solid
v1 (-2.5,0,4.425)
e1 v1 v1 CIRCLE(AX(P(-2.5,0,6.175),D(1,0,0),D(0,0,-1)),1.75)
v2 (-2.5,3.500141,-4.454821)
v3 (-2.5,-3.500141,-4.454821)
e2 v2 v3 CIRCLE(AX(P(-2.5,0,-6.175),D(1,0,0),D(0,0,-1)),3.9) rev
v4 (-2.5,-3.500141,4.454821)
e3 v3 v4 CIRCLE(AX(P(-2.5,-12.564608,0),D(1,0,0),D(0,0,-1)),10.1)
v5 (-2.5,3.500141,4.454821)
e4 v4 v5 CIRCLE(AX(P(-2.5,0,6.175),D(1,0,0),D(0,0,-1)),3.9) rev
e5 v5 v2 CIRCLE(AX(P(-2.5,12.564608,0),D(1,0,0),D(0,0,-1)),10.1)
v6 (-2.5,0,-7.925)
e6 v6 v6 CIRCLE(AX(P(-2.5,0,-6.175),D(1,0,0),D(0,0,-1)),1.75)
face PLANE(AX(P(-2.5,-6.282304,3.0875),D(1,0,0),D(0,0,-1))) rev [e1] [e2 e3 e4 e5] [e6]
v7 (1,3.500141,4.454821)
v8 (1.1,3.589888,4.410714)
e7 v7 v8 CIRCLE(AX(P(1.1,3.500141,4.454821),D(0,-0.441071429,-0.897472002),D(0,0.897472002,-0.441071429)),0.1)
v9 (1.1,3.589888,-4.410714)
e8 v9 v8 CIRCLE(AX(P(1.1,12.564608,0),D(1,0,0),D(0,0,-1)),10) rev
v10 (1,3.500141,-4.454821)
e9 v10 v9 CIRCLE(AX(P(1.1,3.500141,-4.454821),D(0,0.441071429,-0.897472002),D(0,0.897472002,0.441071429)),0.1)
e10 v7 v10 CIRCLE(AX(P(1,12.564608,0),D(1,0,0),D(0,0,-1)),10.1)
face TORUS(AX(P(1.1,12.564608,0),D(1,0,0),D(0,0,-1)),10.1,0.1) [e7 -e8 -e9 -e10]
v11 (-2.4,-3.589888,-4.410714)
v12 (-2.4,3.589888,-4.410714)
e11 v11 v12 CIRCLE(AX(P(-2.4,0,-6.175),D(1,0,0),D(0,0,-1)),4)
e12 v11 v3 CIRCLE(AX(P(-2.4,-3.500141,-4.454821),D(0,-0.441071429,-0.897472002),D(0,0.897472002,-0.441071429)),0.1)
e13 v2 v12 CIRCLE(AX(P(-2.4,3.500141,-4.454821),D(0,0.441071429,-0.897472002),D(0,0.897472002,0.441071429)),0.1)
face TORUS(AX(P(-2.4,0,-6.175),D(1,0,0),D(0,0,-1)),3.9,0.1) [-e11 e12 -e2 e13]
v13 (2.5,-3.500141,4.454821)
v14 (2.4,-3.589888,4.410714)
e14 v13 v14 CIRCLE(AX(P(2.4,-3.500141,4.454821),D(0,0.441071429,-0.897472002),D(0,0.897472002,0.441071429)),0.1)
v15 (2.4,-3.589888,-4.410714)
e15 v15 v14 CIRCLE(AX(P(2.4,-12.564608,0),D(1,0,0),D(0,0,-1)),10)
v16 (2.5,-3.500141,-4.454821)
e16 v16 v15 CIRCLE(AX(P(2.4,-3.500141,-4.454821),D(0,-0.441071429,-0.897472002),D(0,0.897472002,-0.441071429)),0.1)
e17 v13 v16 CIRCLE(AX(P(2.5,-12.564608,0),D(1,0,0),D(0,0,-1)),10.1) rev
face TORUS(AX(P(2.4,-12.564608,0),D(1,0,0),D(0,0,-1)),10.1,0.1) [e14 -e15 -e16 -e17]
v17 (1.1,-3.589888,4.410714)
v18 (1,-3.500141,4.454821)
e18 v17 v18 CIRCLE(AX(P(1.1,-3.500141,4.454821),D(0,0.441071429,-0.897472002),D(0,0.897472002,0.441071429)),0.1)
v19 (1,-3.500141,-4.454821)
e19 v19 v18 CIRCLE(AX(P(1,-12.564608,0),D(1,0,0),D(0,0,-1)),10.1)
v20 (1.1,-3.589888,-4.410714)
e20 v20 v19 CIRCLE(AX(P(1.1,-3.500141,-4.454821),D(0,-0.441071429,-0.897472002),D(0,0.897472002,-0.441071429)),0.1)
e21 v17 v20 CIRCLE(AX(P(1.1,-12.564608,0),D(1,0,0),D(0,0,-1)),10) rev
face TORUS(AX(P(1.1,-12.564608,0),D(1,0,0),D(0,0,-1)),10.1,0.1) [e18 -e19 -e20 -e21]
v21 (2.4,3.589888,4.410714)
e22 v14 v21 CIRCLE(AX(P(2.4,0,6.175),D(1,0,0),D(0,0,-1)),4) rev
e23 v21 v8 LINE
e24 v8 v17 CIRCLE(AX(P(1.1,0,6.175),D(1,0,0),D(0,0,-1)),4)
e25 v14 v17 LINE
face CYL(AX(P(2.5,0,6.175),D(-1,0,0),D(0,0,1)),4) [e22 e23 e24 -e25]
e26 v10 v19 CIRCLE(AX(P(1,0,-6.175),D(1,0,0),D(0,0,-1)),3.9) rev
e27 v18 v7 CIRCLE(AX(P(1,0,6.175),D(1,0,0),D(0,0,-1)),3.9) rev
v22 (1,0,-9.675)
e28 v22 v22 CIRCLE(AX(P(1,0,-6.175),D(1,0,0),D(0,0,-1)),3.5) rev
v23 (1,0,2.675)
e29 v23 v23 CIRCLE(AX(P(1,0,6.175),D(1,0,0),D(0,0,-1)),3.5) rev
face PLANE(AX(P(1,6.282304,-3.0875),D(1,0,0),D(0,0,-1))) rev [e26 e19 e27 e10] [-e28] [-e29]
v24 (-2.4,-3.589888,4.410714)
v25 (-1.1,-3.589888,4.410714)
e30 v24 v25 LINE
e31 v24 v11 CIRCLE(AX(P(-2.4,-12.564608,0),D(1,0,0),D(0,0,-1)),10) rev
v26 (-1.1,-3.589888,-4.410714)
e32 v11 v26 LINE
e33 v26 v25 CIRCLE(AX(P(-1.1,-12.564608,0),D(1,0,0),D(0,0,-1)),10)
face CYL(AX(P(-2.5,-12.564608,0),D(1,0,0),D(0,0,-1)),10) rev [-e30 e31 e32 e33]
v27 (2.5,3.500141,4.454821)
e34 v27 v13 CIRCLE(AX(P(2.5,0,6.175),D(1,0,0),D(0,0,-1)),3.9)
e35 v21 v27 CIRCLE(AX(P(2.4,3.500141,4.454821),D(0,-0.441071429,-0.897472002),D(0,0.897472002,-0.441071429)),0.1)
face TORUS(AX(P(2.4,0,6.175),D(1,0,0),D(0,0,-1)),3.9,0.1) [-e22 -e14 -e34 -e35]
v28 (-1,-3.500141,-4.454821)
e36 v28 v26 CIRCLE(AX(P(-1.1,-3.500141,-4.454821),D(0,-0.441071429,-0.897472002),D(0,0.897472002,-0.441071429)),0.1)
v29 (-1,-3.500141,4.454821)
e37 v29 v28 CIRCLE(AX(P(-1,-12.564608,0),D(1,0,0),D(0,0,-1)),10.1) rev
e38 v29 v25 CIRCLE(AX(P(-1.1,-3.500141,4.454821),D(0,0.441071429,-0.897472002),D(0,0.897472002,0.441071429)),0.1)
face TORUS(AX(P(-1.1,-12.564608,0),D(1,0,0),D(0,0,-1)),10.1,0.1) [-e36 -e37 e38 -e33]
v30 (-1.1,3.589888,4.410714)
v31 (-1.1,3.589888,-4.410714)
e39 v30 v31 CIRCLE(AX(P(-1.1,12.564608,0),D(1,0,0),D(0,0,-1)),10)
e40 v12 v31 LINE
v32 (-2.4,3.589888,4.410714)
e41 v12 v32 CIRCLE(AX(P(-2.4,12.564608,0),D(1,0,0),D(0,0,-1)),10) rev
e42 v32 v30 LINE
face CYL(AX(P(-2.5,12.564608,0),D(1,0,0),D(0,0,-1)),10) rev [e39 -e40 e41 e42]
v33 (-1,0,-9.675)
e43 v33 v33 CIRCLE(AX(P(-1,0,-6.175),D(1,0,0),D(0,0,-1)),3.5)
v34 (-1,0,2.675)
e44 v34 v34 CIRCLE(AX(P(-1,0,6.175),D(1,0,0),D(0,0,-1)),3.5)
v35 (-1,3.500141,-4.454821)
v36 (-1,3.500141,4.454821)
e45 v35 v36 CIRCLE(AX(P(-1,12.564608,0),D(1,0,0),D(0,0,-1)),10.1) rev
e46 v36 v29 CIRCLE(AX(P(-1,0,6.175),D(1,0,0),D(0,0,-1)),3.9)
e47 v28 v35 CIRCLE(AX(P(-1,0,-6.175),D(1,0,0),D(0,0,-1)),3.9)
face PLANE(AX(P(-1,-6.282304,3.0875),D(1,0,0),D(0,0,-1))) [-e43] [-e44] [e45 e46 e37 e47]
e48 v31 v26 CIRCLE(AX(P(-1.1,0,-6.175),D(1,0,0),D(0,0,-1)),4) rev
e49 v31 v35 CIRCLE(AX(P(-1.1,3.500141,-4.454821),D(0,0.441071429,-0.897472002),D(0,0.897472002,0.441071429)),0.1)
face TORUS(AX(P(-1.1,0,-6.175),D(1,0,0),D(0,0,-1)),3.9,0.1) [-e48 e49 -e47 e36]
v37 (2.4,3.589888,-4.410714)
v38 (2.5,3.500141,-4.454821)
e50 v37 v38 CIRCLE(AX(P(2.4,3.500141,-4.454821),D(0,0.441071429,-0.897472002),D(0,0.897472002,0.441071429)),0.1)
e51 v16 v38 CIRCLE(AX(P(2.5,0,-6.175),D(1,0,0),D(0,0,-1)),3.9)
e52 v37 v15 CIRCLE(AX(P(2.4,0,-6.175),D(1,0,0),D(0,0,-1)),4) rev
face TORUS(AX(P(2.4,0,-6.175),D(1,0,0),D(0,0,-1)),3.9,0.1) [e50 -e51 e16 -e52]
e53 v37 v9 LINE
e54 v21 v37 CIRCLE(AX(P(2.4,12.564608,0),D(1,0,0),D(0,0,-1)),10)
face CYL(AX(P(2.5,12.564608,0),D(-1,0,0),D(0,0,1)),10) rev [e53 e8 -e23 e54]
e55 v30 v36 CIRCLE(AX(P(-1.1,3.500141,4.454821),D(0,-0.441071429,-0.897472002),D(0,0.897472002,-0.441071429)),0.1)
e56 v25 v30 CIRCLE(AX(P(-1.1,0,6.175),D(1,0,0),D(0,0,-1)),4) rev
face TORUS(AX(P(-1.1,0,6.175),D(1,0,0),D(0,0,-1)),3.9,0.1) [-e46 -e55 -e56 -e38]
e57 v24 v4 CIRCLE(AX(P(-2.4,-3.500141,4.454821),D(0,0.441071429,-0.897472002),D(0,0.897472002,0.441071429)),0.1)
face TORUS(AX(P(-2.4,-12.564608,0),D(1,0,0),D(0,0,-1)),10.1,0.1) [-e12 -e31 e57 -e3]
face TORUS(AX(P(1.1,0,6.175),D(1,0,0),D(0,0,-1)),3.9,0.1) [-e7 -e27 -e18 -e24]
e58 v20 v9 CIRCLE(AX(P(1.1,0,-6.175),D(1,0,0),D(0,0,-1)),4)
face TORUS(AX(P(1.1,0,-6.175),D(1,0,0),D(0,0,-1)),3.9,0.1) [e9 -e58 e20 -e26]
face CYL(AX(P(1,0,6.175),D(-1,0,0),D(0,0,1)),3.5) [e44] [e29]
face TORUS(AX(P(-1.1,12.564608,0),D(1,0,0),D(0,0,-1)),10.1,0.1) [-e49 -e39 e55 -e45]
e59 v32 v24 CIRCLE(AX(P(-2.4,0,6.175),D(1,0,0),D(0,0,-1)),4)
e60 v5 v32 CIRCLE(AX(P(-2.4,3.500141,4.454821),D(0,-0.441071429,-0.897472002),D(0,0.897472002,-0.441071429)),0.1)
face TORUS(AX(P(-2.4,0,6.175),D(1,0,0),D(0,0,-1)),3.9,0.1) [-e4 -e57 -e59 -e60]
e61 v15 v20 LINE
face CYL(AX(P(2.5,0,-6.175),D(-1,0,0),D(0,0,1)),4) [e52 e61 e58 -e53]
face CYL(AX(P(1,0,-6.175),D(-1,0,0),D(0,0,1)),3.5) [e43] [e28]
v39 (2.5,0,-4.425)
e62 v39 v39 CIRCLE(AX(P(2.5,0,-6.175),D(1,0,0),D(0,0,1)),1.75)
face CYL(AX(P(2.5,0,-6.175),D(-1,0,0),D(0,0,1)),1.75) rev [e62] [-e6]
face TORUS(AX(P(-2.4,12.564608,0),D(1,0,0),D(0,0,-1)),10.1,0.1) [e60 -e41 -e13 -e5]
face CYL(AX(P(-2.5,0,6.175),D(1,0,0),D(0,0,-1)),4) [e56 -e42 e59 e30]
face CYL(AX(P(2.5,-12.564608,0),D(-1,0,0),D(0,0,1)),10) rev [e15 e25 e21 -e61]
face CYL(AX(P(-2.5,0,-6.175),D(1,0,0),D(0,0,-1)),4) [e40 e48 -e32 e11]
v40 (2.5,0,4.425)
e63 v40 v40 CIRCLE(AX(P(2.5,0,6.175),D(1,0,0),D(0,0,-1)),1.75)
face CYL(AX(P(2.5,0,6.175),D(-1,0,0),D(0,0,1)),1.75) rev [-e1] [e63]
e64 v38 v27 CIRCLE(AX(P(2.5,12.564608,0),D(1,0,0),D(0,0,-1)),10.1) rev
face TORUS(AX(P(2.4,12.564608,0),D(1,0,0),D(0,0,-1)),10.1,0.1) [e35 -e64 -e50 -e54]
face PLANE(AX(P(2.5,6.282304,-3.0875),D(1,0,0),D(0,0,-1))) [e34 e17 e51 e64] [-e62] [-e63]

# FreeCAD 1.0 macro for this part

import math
import FreeCAD as App
import Part
import Sketcher
from FreeCAD import Vector


def edges_at(feature, points):
    """Names of the edges that pass closest to the given points."""
    edges = feature.Shape.Edges
    near = lambda p: min(range(len(edges)), key=lambda i: edges[i].distToShape(Part.Vertex(*p))[0])
    return sorted({f"Edge{near(p) + 1}" for p in points})

doc = App.newDocument("Part")
body = doc.addObject("PartDesign::Body", "Body")

# Sketch on YZ plane
sketch1 = doc.addObject("Sketcher::SketchObject", "Sketch")
body.addObject(sketch1)
sketch1.AttachmentSupport = (doc.YZ_Plane, [""])
sketch1.MapMode = "FlatFace"
sketch1.AttachmentOffset = App.Placement(Vector(0, 0, 1), App.Rotation())
sketch1.addGeometry([
    Part.ArcOfCircle(Part.Circle(Vector(0, 6.2, 0), Vector(0, 0, 1), 4), math.radians(-26), math.radians(206)),  # 0
    Part.ArcOfCircle(Part.Circle(Vector(-12.6, 0, 0), Vector(0, 0, 1), 10), math.radians(-26), math.radians(26)),  # 1
    Part.ArcOfCircle(Part.Circle(Vector(0, -6.2, 0), Vector(0, 0, 1), 4), math.radians(154), math.radians(386)),  # 2
    Part.ArcOfCircle(Part.Circle(Vector(12.6, 0, 0), Vector(0, 0, 1), 10), math.radians(154), math.radians(206)),  # 3
    Part.Circle(Vector(0, 6.2, 0), Vector(0, 0, 1), 1.8),  # 4
    Part.Circle(Vector(0, -6.2, 0), Vector(0, 0, 1), 1.8),  # 5
], False)
sketch1.addConstraint([
    Sketcher.Constraint("Tangent", 0, 2, 1, 2),
    Sketcher.Constraint("Tangent", 1, 1, 2, 1),
    Sketcher.Constraint("Tangent", 2, 2, 3, 2),
    Sketcher.Constraint("Tangent", 3, 1, 0, 1),
    Sketcher.Constraint("Coincident", 4, 3, 0, 3),
    Sketcher.Constraint("Coincident", 5, 3, 2, 3),
    Sketcher.Constraint("Equal", 0, 2),
    Sketcher.Constraint("Equal", 1, 3),
    Sketcher.Constraint("Equal", 4, 5),
    Sketcher.Constraint("Symmetric", 0, 3, 2, 3, -1, 1),
    Sketcher.Constraint("PointOnObject", 0, 3, -2),
    Sketcher.Constraint("Radius", 0, 4.0),
    Sketcher.Constraint("Radius", 1, 10.0),
    Sketcher.Constraint("Diameter", 4, 3.5),
    Sketcher.Constraint("DistanceY", 2, 3, 0, 3, 12.35),
])
pad1 = doc.addObject("PartDesign::Pad", "Pad")
body.addObject(pad1)
pad1.Profile = sketch1
pad1.Length = 1.5
body2 = doc.addObject("PartDesign::Body", "Body001")

# Sketch on YZ plane
sketch2 = doc.addObject("Sketcher::SketchObject", "Sketch001")
body2.addObject(sketch2)
sketch2.AttachmentSupport = (doc.getObject("YZ_Plane001"), [""])
sketch2.MapMode = "FlatFace"
sketch2.AttachmentOffset = App.Placement(Vector(0, 0, -1), App.Rotation())
sketch2.addGeometry([
    Part.ArcOfCircle(Part.Circle(Vector(12.6, 0, 0), Vector(0, 0, 1), 10), math.radians(154), math.radians(206)),  # 0
    Part.ArcOfCircle(Part.Circle(Vector(0, 6.2, 0), Vector(0, 0, 1), 4), math.radians(-26), math.radians(206)),  # 1
    Part.ArcOfCircle(Part.Circle(Vector(-12.6, 0, 0), Vector(0, 0, 1), 10), math.radians(-26), math.radians(26)),  # 2
    Part.ArcOfCircle(Part.Circle(Vector(0, -6.2, 0), Vector(0, 0, 1), 4), math.radians(154), math.radians(386)),  # 3
    Part.Circle(Vector(0, -6.2, 0), Vector(0, 0, 1), 1.8),  # 4
    Part.Circle(Vector(0, 6.2, 0), Vector(0, 0, 1), 1.8),  # 5
], False)
sketch2.addConstraint([
    Sketcher.Constraint("Tangent", 0, 1, 1, 1),
    Sketcher.Constraint("Tangent", 1, 2, 2, 2),
    Sketcher.Constraint("Tangent", 2, 1, 3, 1),
    Sketcher.Constraint("Tangent", 3, 2, 0, 2),
    Sketcher.Constraint("Coincident", 4, 3, 3, 3),
    Sketcher.Constraint("Coincident", 5, 3, 1, 3),
    Sketcher.Constraint("Equal", 0, 2),
    Sketcher.Constraint("Equal", 1, 3),
    Sketcher.Constraint("Equal", 4, 5),
    Sketcher.Constraint("Symmetric", 0, 3, 2, 3, -1, 1),
    Sketcher.Constraint("PointOnObject", 0, 3, -1),
    Sketcher.Constraint("Radius", 0, 10.0),
    Sketcher.Constraint("Radius", 1, 4.0),
    Sketcher.Constraint("Diameter", 4, 3.5),
    Sketcher.Constraint("DistanceY", 3, 3, 1, 3, 12.35),
])
pad2 = doc.addObject("PartDesign::Pad", "Pad001")
body2.addObject(pad2)
pad2.Profile = sketch2
pad2.Length = 1.5
pad2.Reversed = True
body.AllowCompound = True
doc.recompute()

boolean = doc.addObject("PartDesign::Boolean", "Boolean")
body.addObject(boolean)
boolean.Type = "Fuse"
boolean.addObjects([body2])

# Sketch on YZ plane
sketch3 = doc.addObject("Sketcher::SketchObject", "Sketch002")
body.addObject(sketch3)
sketch3.AttachmentSupport = (doc.YZ_Plane, [""])
sketch3.MapMode = "FlatFace"
sketch3.addGeometry([
    Part.Circle(Vector(0, 6.2, 0), Vector(0, 0, 1), 3.5),
    Part.Circle(Vector(0, 6.2, 0), Vector(0, 0, 1), 1.8),
    Part.Circle(Vector(0, -6.2, 0), Vector(0, 0, 1), 3.5),
    Part.Circle(Vector(0, -6.2, 0), Vector(0, 0, 1), 1.8),
], False)
sketch3.addConstraint([
    Sketcher.Constraint("Coincident", 1, 3, 0, 3),
    Sketcher.Constraint("Coincident", 3, 3, 2, 3),
    Sketcher.Constraint("Equal", 0, 2),
    Sketcher.Constraint("Equal", 1, 3),
    Sketcher.Constraint("Symmetric", 0, 3, 2, 3, -1, 1),
    Sketcher.Constraint("PointOnObject", 0, 3, -2),
    Sketcher.Constraint("Diameter", 0, 7.0),
    Sketcher.Constraint("Diameter", 1, 3.5),
    Sketcher.Constraint("DistanceY", 2, 3, 0, 3, 12.35),
])
pad3 = doc.addObject("PartDesign::Pad", "Pad002")
body.addObject(pad3)
pad3.Profile = sketch3
pad3.Length = 2
pad3.Midplane = True
doc.recompute()

fillet = doc.addObject("PartDesign::Fillet", "Fillet")
body.addObject(fillet)
fillet.Base = (pad3, edges_at(pad3, [
    (2.5, -2.565, 0),
    (2.5, 0, -10.175),
    (-2.5, 0, 10.175),
    (-2.5, 2.565, 0),
    (-2.5, 0, -10.175),
    (-2.5, -2.565, 0),
    (-1, 0, 10.175),
    (-1, -2.565, 0),
    (-1, 0, -10.175),
    (-1, 2.565, 0),
    (2.5, 2.565, 0),
    (1, 0, -10.175),
    (1, -2.565, 0),
    (1, 0, 10.175),
    (1, 2.565, 0),
    (2.5, 0, 10.175),
]))
fillet.Radius = 0.1

doc.recompute()
